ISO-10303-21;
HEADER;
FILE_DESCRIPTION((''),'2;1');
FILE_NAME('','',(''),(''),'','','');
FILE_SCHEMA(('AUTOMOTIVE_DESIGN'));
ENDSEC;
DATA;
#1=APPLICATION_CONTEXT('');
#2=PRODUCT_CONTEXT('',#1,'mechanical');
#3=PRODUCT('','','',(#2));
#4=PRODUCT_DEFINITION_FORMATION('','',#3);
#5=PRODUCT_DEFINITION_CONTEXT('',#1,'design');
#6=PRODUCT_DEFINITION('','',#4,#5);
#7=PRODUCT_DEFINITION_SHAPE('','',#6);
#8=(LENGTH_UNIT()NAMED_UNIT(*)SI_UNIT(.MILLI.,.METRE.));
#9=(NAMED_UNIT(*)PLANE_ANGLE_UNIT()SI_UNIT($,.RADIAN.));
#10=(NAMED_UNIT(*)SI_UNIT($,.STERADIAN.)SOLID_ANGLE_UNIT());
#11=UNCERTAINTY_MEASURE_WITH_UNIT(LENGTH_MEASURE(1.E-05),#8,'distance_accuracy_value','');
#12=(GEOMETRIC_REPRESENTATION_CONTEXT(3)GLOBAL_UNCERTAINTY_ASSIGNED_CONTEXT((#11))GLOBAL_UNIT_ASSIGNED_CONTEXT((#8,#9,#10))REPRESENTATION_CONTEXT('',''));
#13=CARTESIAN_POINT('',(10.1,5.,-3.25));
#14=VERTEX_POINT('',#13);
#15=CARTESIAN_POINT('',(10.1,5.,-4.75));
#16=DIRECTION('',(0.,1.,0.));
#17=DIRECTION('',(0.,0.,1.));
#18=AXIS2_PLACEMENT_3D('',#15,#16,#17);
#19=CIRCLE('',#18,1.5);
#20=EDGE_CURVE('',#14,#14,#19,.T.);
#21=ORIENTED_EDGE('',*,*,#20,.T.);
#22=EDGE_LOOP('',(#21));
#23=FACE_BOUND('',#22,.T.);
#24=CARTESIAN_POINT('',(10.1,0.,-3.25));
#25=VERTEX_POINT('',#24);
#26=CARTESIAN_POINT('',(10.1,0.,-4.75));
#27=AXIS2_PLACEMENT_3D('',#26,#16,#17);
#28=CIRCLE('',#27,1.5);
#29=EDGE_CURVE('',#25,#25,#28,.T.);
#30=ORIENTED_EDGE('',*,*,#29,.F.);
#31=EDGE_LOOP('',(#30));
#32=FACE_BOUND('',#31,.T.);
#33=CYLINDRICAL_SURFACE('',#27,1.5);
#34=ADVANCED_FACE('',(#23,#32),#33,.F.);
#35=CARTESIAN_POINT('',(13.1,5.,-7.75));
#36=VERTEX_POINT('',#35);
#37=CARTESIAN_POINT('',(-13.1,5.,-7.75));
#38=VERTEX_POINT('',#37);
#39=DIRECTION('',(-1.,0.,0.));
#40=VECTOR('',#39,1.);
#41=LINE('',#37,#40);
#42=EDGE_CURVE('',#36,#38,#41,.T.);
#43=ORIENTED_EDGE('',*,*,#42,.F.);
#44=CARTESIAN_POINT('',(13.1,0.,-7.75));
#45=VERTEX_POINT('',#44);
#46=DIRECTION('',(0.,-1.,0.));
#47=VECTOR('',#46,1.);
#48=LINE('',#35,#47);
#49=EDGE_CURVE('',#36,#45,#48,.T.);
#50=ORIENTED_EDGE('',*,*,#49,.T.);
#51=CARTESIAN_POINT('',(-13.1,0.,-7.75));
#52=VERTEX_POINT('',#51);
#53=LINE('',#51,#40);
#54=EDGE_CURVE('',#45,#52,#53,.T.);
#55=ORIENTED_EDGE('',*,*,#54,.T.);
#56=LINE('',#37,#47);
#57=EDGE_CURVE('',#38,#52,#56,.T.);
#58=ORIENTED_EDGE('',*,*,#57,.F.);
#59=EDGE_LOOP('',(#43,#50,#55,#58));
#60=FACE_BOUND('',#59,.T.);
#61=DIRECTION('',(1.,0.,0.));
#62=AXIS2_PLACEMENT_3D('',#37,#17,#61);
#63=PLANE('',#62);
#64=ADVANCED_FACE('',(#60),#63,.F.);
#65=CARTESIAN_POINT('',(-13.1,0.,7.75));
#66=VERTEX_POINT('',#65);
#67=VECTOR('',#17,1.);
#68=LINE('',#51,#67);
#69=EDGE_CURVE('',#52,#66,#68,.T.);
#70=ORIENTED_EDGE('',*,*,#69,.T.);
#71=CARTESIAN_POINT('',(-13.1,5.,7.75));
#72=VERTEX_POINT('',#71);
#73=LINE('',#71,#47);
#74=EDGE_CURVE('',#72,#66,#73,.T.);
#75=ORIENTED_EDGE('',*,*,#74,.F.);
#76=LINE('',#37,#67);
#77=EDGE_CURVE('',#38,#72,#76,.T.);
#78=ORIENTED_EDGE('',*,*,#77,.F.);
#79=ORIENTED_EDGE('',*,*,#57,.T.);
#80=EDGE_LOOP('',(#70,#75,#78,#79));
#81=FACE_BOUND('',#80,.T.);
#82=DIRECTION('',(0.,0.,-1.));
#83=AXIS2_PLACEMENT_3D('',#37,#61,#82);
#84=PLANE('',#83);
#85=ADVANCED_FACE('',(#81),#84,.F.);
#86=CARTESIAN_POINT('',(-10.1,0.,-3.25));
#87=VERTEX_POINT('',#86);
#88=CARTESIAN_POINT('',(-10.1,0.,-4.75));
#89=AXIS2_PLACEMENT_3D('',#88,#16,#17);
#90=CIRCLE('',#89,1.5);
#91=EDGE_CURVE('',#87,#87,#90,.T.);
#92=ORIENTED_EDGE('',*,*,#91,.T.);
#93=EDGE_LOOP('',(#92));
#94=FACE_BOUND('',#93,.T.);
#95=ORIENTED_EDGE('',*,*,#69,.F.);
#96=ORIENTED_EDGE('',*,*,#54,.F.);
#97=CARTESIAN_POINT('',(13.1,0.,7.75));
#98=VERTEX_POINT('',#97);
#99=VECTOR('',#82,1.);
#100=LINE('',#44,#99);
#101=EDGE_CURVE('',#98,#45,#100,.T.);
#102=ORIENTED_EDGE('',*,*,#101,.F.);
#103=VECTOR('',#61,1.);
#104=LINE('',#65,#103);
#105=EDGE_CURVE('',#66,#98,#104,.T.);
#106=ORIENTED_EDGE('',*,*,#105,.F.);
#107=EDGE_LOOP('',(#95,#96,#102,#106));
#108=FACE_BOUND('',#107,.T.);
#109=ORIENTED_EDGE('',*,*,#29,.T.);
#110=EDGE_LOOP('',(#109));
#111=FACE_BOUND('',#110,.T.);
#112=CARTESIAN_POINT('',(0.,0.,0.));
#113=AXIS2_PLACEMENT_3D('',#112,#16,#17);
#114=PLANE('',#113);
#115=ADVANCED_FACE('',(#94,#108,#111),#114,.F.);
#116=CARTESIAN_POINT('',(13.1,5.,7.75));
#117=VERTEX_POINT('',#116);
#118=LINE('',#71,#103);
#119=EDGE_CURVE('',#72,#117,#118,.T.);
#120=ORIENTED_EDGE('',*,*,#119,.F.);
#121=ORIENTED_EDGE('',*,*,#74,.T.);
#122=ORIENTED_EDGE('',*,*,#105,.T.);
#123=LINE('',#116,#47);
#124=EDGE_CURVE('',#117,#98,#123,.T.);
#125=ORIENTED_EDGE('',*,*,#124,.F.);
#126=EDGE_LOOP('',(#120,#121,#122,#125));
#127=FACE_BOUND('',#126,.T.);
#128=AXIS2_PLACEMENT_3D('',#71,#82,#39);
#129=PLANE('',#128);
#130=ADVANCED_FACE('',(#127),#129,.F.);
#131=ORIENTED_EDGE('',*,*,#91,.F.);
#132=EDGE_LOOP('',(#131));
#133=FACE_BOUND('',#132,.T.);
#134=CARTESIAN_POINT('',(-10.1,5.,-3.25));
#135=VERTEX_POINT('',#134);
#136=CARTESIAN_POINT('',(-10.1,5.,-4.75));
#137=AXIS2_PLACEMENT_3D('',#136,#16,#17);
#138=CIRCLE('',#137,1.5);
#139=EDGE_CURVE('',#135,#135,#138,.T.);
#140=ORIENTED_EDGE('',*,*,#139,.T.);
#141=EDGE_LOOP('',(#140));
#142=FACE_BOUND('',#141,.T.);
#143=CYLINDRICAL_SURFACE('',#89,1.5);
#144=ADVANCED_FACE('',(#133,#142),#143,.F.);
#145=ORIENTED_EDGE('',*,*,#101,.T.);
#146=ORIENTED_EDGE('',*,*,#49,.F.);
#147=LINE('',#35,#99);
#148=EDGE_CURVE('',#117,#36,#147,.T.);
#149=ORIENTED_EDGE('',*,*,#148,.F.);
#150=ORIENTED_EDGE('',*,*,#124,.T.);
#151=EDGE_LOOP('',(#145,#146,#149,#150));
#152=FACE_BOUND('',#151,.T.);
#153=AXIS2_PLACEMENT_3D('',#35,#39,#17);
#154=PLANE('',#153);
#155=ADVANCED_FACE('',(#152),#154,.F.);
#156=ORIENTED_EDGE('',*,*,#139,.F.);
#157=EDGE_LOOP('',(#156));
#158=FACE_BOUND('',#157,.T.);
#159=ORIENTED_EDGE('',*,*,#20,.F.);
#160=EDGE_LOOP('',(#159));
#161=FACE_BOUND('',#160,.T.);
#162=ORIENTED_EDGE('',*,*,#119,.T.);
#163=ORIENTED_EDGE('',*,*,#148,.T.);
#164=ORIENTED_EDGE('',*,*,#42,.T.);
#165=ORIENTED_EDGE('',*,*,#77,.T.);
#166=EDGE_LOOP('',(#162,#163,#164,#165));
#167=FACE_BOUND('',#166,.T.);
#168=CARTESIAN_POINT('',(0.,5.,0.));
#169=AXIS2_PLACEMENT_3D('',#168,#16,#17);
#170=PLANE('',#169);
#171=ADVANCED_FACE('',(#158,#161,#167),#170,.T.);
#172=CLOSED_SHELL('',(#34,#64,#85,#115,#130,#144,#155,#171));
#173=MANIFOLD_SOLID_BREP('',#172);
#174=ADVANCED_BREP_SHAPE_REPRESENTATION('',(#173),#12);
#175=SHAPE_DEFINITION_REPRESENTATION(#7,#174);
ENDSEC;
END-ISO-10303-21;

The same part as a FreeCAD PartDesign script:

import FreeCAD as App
import Part
import Sketcher

V = App.Vector
Q = App.Units.Quantity

doc = App.newDocument("Part")
body = doc.addObject("PartDesign::Body", "Body")

# Sketch on XZ plane
sketch1 = doc.addObject("Sketcher::SketchObject", "Sketch")
body.addObject(sketch1)
sketch1.AttachmentSupport = (doc.XZ_Plane, [""])
sketch1.MapMode = "FlatFace"
sketch1.addGeometry(Part.LineSegment(V(-13, -8, 0), V(-13, 8, 0)), False)
sketch1.addGeometry(Part.LineSegment(V(-13, 8, 0), V(13, 8, 0)), False)
sketch1.addGeometry(Part.LineSegment(V(13, 8, 0), V(13, -8, 0)), False)
sketch1.addGeometry(Part.LineSegment(V(13, -8, 0), V(-13, -8, 0)), False)
sketch1.addConstraint(Sketcher.Constraint("Coincident", 0, 2, 1, 1))
sketch1.addConstraint(Sketcher.Constraint("Coincident", 1, 2, 2, 1))
sketch1.addConstraint(Sketcher.Constraint("Coincident", 2, 2, 3, 1))
sketch1.addConstraint(Sketcher.Constraint("Coincident", 3, 2, 0, 1))
sketch1.addConstraint(Sketcher.Constraint("Vertical", 0))
sketch1.addConstraint(Sketcher.Constraint("Horizontal", 1))
sketch1.addConstraint(Sketcher.Constraint("Vertical", 2))
sketch1.addConstraint(Sketcher.Constraint("Horizontal", 3))
sketch1.addConstraint(Sketcher.Constraint("Symmetric", 0, 2, 2, 2, -1, 1))
sketch1.addConstraint(Sketcher.Constraint("DistanceX", 1, 1, 1, 2, Q("26.2 mm")))
sketch1.addConstraint(Sketcher.Constraint("DistanceY", 0, 1, 0, 2, Q("15.5 mm")))
pad1 = doc.addObject("PartDesign::Pad", "Pad")
body.addObject(pad1)
pad1.Profile = sketch1
pad1.Length = 5
pad1.Reversed = True

# Sketch on XZ plane
sketch2 = doc.addObject("Sketcher::SketchObject", "Sketch001")
body.addObject(sketch2)
sketch2.AttachmentSupport = (doc.XZ_Plane, [""])
sketch2.MapMode = "FlatFace"
sketch2.AttachmentOffset = App.Placement(V(0, 0, -5), App.Rotation())
sketch2.addGeometry(Part.Circle(V(-10.1, -4.8, 0), V(0, 0, 1), 1.5), False)
sketch2.addGeometry(Part.Circle(V(10.1, -4.8, 0), V(0, 0, 1), 1.5), False)
sketch2.addConstraint(Sketcher.Constraint("Equal", 0, 1))
sketch2.addConstraint(Sketcher.Constraint("Symmetric", 0, 3, 1, 3, -2))
sketch2.addConstraint(Sketcher.Constraint("Diameter", 0, Q("3 mm")))
sketch2.addConstraint(Sketcher.Constraint("DistanceX", 0, 3, -1, 1, Q("10.1 mm")))
sketch2.addConstraint(Sketcher.Constraint("DistanceY", 0, 3, -1, 1, Q("4.75 mm")))
pocket1 = doc.addObject("PartDesign::Pocket", "Pocket")
body.addObject(pocket1)
pocket1.Profile = sketch2
pocket1.Length = 5
pocket1.Reversed = True

doc.recompute()
